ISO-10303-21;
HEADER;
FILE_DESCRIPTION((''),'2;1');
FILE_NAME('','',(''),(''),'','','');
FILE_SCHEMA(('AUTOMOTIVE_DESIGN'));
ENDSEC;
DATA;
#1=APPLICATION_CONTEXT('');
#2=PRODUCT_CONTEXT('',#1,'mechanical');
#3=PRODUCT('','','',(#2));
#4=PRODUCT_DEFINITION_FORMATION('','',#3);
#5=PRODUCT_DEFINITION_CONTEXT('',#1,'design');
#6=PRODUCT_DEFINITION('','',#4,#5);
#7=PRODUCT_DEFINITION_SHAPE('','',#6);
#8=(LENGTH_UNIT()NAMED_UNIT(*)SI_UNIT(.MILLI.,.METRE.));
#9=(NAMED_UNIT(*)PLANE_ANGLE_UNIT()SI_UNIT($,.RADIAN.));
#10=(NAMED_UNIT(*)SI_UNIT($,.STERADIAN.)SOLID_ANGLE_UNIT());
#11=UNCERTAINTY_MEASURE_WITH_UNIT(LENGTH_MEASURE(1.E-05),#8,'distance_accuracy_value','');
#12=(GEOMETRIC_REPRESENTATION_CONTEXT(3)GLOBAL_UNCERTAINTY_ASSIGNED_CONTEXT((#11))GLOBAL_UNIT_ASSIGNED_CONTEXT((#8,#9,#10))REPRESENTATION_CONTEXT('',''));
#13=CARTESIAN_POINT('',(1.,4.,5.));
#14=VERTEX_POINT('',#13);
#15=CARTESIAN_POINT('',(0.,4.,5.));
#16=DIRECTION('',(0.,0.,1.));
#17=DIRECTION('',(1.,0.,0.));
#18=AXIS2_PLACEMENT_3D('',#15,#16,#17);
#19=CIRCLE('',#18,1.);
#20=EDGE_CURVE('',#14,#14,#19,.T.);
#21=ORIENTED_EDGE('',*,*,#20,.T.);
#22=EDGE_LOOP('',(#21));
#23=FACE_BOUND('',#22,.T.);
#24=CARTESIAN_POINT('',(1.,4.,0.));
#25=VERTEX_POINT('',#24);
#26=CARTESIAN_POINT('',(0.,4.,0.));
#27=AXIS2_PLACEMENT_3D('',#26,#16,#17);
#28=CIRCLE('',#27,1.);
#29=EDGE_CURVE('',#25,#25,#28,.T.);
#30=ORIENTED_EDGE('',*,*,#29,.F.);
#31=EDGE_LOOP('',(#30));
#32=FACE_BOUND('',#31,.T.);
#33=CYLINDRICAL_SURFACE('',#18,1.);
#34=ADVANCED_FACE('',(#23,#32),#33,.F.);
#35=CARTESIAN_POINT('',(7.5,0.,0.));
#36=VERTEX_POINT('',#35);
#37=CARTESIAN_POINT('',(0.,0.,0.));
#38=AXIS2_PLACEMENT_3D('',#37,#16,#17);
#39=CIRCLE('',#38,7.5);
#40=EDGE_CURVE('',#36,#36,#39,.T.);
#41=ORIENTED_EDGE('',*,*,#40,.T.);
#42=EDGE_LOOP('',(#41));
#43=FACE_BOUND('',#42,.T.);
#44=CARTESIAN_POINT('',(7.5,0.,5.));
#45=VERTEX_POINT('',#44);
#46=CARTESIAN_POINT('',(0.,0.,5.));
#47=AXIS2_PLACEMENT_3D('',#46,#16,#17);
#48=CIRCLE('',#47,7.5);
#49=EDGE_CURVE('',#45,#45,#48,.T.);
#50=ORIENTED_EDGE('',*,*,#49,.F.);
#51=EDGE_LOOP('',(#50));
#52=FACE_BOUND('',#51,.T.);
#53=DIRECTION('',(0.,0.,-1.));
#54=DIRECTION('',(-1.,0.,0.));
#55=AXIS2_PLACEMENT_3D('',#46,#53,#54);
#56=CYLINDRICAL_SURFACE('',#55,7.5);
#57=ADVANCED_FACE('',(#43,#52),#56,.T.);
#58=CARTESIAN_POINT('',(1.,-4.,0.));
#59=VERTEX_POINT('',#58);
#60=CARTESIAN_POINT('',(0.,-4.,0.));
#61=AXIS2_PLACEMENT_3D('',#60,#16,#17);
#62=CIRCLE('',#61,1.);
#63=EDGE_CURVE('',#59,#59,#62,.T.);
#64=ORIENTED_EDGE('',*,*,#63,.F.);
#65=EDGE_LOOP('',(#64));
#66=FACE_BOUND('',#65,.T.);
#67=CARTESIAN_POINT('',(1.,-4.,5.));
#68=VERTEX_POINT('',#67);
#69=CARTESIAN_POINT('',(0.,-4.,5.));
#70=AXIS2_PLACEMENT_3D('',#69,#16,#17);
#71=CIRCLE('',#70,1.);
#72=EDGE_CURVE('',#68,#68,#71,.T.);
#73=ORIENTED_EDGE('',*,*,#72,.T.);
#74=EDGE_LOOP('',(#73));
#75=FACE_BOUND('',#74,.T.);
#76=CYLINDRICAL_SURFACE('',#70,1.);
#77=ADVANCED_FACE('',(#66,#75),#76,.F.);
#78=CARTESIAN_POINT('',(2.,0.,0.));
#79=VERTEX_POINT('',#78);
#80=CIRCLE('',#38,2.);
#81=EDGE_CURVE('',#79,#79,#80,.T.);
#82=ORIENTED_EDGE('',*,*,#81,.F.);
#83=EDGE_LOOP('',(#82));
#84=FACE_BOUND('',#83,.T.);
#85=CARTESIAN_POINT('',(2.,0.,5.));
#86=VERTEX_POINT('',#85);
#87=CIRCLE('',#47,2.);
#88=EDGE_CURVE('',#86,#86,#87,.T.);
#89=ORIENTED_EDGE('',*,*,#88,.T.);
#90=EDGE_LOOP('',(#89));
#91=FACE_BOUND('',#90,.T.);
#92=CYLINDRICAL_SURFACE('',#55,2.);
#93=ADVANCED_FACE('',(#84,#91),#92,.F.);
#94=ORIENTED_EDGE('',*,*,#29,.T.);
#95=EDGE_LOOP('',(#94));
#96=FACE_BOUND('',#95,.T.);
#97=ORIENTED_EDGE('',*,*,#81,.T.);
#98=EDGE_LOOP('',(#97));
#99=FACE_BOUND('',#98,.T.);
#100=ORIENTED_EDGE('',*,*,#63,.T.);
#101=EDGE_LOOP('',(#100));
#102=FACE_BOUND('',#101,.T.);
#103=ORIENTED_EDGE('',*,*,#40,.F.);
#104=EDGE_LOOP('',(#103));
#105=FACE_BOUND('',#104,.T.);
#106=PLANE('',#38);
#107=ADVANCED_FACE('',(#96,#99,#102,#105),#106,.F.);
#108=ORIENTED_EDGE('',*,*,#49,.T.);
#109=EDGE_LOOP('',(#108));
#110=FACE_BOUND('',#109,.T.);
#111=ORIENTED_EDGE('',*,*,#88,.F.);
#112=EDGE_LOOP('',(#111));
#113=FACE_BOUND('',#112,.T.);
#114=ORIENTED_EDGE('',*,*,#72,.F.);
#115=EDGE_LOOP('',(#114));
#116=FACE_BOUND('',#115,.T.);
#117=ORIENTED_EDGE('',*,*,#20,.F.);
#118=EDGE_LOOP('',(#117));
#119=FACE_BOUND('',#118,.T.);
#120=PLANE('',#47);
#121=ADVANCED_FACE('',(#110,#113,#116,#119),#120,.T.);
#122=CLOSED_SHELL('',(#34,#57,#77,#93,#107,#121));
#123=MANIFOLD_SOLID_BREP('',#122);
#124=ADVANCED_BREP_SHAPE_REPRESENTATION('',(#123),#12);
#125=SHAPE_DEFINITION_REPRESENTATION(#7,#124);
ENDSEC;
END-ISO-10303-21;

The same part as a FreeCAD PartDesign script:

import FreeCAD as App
import Part
import Sketcher

V = App.Vector

doc = App.newDocument("Part")
body = doc.addObject("PartDesign::Body", "Body")

# Sketch on XY plane
sketch1 = doc.addObject("Sketcher::SketchObject", "Sketch")
body.addObject(sketch1)
sketch1.AttachmentSupport = (doc.XY_Plane, [""])
sketch1.MapMode = "FlatFace"
sketch1.addGeometry(Part.Circle(V(0, 0, 0), V(0, 0, 1), 7.5), False)
sketch1.addGeometry(Part.Circle(V(0, 0, 0), V(0, 0, 1), 2), False)
sketch1.addConstraint(Sketcher.Constraint("Coincident", 0, 3, -1, 1))
sketch1.addConstraint(Sketcher.Constraint("Coincident", 1, 3, -1, 1))
sketch1.addConstraint(Sketcher.Constraint("Diameter", 0, 15.0))
sketch1.addConstraint(Sketcher.Constraint("Diameter", 1, 4.0))
pad1 = doc.addObject("PartDesign::Pad", "Pad")
body.addObject(pad1)
pad1.Profile = sketch1
pad1.Length = 5

# Sketch on XY plane
sketch2 = doc.addObject("Sketcher::SketchObject", "Sketch001")
body.addObject(sketch2)
sketch2.AttachmentSupport = (doc.XY_Plane, [""])
sketch2.MapMode = "FlatFace"
sketch2.AttachmentOffset = App.Placement(V(0, 0, 5), App.Rotation())
sketch2.addGeometry(Part.Circle(V(0, -4, 0), V(0, 0, 1), 1), False)
sketch2.addGeometry(Part.Circle(V(0, 4, 0), V(0, 0, 1), 1), False)
sketch2.addConstraint(Sketcher.Constraint("Equal", 0, 1))
sketch2.addConstraint(Sketcher.Constraint("Symmetric", 0, 3, 1, 3, -1, 1))
sketch2.addConstraint(Sketcher.Constraint("PointOnObject", 0, 3, -2))
sketch2.addConstraint(Sketcher.Constraint("Diameter", 0, 2.0))
sketch2.addConstraint(Sketcher.Constraint("DistanceY", 0, 3, -1, 1, 4.0))
doc.recompute()
hole = doc.addObject("PartDesign::Hole", "Hole")
body.addObject(hole)
hole.Profile = sketch2
hole.ThreadType = "None"
hole.Diameter = 2
hole.DepthType = "ThroughAll"

doc.recompute()
